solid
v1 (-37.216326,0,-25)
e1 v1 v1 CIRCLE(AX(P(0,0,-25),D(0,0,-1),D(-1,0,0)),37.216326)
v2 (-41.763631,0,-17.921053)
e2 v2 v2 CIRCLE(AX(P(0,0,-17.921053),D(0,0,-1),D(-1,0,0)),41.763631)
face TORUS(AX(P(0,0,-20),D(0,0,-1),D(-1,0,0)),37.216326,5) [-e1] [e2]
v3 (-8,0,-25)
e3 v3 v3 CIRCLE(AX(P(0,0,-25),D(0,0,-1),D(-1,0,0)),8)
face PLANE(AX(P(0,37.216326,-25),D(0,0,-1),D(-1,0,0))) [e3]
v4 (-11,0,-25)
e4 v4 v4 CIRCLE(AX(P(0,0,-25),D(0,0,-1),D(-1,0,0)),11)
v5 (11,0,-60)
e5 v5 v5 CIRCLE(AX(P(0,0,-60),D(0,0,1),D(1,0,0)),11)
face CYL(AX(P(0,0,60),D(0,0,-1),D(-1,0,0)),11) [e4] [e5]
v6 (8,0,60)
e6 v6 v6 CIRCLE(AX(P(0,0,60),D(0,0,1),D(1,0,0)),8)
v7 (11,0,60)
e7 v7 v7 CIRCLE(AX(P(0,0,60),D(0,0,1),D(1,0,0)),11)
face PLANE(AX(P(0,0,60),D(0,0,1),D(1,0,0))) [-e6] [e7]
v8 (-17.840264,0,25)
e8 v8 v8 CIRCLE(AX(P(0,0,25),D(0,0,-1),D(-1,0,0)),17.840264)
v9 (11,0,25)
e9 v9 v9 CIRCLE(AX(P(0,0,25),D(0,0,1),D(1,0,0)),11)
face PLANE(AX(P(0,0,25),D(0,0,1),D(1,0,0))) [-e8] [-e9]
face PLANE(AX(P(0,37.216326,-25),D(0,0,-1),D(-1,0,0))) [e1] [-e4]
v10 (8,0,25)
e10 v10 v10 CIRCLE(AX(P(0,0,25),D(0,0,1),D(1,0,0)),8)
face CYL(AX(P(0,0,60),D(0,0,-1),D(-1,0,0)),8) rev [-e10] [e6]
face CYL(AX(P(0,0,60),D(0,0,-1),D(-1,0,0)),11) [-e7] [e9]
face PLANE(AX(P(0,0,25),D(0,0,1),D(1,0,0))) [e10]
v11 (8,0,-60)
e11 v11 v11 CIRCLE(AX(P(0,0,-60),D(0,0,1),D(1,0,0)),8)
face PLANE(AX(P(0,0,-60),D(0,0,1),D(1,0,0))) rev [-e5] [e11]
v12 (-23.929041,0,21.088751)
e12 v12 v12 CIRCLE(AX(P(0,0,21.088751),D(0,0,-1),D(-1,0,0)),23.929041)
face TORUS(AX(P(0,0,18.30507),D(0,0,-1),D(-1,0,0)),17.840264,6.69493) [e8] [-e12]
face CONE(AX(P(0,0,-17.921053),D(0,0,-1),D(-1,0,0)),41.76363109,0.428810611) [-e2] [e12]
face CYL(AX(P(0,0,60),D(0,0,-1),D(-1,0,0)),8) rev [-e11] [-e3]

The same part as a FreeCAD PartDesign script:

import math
import FreeCAD as App
import Part
import Sketcher
from FreeCAD import Vector

doc = App.newDocument("Part")
body = doc.addObject("PartDesign::Body", "Body")

# Sketch on XY plane
sketch1 = body.newObject("Sketcher::SketchObject", "Sketch")
sketch1.AttachmentSupport = (doc.getObject("XY_Plane"), [""])
sketch1.MapMode = "FlatFace"
sketch1.addGeometry([
    Part.Circle(Vector(0, 0, 0), Vector(0, 0, 1), 11),
    Part.Circle(Vector(0, 0, 0), Vector(0, 0, 1), 8),
], False)
sketch1.addConstraint([
    Sketcher.Constraint("Coincident", 0, 3, -1, 1),
    Sketcher.Constraint("Coincident", 1, 3, -1, 1),
    Sketcher.Constraint("Diameter", 0, 22.0),
    Sketcher.Constraint("Diameter", 1, 16.0),
])
pad1 = body.newObject("PartDesign::Pad", "Pad")
pad1.Profile = sketch1
pad1.Length = 120
pad1.Midplane = True

# Sketch on YZ plane
sketch2 = body.newObject("Sketcher::SketchObject", "Sketch001")
sketch2.AttachmentSupport = (doc.getObject("YZ_Plane"), [""])
sketch2.MapMode = "FlatFace"
sketch2.addGeometry([
    Part.LineSegment(Vector(18, 25, 0), Vector(0, 25, 0)),  # 0
    Part.LineSegment(Vector(0, 25, 0), Vector(0, -25, 0)),  # 1
    Part.LineSegment(Vector(0, -25, 0), Vector(37, -25, 0)),  # 2
    Part.ArcOfCircle(Part.Circle(Vector(37, -20, 0), Vector(0, 0, 1), 5), math.radians(-90), math.radians(25)),  # 3
    Part.LineSegment(Vector(42, -18, 0), Vector(24, 21, 0)),  # 4
    Part.ArcOfCircle(Part.Circle(Vector(18, 18, 0), Vector(0, 0, 1), 7), math.radians(25), math.radians(90)),  # 5
], False)
sketch2.addConstraint([
    Sketcher.Constraint("Coincident", 0, 2, 1, 1),
    Sketcher.Constraint("Coincident", 1, 2, 2, 1),
    Sketcher.Constraint("Tangent", 2, 2, 3, 1),
    Sketcher.Constraint("Tangent", 3, 2, 4, 1),
    Sketcher.Constraint("Tangent", 4, 2, 5, 1),
    Sketcher.Constraint("Tangent", 5, 2, 0, 1),
    Sketcher.Constraint("Horizontal", 0),
    Sketcher.Constraint("Vertical", 1),
    Sketcher.Constraint("Horizontal", 2),
    Sketcher.Constraint("Symmetric", 0, 2, 1, 2, -1, 1),
    Sketcher.Constraint("Radius", 3, 5.0),
    Sketcher.Constraint("DistanceY", 1, 2, 1, 1, 50.0),
    Sketcher.Constraint("Radius", 5, 6.69493),
    Sketcher.Constraint("DistanceX", 0, 2, 0, 1, 17.840264),
    Sketcher.Constraint("DistanceX", 2, 1, 2, 2, 37.216326),
])
revolution = body.newObject("PartDesign::Revolution", "Revolution")
revolution.Profile = sketch2
revolution.ReferenceAxis = (sketch2, ["V_Axis"])
revolution.Angle = 360

doc.recompute()
